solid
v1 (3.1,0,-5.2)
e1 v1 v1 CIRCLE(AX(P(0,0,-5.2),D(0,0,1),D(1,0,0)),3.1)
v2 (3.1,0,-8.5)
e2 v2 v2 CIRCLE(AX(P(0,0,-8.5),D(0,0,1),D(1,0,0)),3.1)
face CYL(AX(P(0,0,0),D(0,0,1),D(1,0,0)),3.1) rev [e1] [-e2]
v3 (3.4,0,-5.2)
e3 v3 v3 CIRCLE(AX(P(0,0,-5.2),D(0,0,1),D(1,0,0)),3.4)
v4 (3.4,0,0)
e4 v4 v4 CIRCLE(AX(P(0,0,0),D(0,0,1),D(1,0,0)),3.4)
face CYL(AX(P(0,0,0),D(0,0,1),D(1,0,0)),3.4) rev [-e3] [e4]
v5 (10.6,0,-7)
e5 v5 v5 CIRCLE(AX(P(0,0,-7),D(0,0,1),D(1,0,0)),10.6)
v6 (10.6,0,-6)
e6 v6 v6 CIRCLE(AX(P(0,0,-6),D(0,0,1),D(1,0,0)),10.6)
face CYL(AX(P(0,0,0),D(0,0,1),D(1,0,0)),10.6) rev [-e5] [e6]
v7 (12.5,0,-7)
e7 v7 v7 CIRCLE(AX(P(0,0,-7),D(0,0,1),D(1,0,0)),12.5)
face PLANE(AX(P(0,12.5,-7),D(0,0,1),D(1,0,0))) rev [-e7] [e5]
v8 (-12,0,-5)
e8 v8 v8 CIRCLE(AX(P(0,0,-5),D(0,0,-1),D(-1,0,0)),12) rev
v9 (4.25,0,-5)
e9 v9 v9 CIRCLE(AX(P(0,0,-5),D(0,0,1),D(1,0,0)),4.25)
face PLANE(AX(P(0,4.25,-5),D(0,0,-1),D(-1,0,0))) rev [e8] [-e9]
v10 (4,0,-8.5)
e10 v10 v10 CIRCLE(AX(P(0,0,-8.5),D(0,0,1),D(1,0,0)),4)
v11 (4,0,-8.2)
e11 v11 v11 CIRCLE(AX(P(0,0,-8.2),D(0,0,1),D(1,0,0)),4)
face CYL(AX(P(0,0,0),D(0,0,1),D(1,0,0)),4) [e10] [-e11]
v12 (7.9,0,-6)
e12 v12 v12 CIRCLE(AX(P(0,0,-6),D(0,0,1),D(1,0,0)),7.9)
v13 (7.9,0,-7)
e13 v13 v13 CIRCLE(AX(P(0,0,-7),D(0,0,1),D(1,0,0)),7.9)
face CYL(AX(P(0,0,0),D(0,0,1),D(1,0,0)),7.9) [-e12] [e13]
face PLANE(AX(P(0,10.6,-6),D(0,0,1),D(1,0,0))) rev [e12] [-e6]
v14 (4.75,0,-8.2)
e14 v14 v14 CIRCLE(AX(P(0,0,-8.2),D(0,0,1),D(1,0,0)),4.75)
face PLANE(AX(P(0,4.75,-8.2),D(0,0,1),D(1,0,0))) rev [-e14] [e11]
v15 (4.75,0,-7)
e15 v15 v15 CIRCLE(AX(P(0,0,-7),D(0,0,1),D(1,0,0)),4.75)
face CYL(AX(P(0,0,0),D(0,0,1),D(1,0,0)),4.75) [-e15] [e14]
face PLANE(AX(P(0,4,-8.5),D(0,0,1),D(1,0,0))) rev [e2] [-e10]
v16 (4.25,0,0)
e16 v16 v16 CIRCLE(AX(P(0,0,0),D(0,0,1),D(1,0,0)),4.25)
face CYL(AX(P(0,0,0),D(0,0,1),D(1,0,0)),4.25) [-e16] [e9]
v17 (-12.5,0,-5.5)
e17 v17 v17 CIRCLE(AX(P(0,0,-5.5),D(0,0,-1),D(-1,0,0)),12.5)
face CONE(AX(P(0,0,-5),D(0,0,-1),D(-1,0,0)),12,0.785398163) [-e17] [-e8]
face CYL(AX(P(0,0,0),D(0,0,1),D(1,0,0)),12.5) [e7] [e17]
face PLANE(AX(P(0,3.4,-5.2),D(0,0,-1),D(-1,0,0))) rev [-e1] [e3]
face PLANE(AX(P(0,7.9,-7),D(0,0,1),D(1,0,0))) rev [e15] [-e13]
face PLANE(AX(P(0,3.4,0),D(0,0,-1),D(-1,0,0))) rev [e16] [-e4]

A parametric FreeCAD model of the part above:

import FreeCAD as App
import Part
import Sketcher
from FreeCAD import Vector
Q = App.Units.Quantity


def edges_at(feature, points):
    """Names of the edges that pass closest to the given points."""
    edges = feature.Shape.Edges
    near = lambda p: min(range(len(edges)), key=lambda i: edges[i].distToShape(Part.Vertex(*p))[0])
    return sorted({f"Edge{near(p) + 1}" for p in points})

doc = App.newDocument("Part")
body = doc.addObject("PartDesign::Body", "Body")

sketch1 = body.newObject("Sketcher::SketchObject", "Sketch")
sketch1.AttachmentSupport = (doc.getObject("YZ_Plane"), [""])
sketch1.MapMode = "FlatFace"
sketch1.addGeometry(Part.LineSegment(Vector(4.25, 0, 0), Vector(3.4, 0, 0)), False)
sketch1.addGeometry(Part.LineSegment(Vector(3.4, 0, 0), Vector(3.4, -5.2, 0)), False)
sketch1.addGeometry(Part.LineSegment(Vector(3.4, -5.2, 0), Vector(3.1, -5.2, 0)), False)
sketch1.addGeometry(Part.LineSegment(Vector(3.1, -5.2, 0), Vector(3.1, -8.5, 0)), False)
sketch1.addGeometry(Part.LineSegment(Vector(3.1, -8.5, 0), Vector(4, -8.5, 0)), False)
sketch1.addGeometry(Part.LineSegment(Vector(4, -8.5, 0), Vector(4, -8.2, 0)), False)
sketch1.addGeometry(Part.LineSegment(Vector(4, -8.2, 0), Vector(4.75, -8.2, 0)), False)
sketch1.addGeometry(Part.LineSegment(Vector(4.75, -8.2, 0), Vector(4.75, -7, 0)), False)
sketch1.addGeometry(Part.LineSegment(Vector(4.75, -7, 0), Vector(7.9, -7, 0)), False)
sketch1.addGeometry(Part.LineSegment(Vector(7.9, -7, 0), Vector(7.9, -6, 0)), False)
sketch1.addGeometry(Part.LineSegment(Vector(7.9, -6, 0), Vector(10.6, -6, 0)), False)
sketch1.addGeometry(Part.LineSegment(Vector(10.6, -6, 0), Vector(10.6, -7, 0)), False)
sketch1.addGeometry(Part.LineSegment(Vector(10.6, -7, 0), Vector(12.5, -7, 0)), False)
sketch1.addGeometry(Part.LineSegment(Vector(12.5, -7, 0), Vector(12.5, -5, 0)), False)
sketch1.addGeometry(Part.LineSegment(Vector(12.5, -5, 0), Vector(4.25, -5, 0)), False)
sketch1.addGeometry(Part.LineSegment(Vector(4.25, -5, 0), Vector(4.25, 0, 0)), False)
sketch1.addConstraint(Sketcher.Constraint("Coincident", 0, 2, 1, 1))
sketch1.addConstraint(Sketcher.Constraint("Coincident", 1, 2, 2, 1))
sketch1.addConstraint(Sketcher.Constraint("Coincident", 2, 2, 3, 1))
sketch1.addConstraint(Sketcher.Constraint("Coincident", 3, 2, 4, 1))
sketch1.addConstraint(Sketcher.Constraint("Coincident", 4, 2, 5, 1))
sketch1.addConstraint(Sketcher.Constraint("Coincident", 5, 2, 6, 1))
sketch1.addConstraint(Sketcher.Constraint("Coincident", 6, 2, 7, 1))
sketch1.addConstraint(Sketcher.Constraint("Coincident", 7, 2, 8, 1))
sketch1.addConstraint(Sketcher.Constraint("Coincident", 8, 2, 9, 1))
sketch1.addConstraint(Sketcher.Constraint("Coincident", 9, 2, 10, 1))
sketch1.addConstraint(Sketcher.Constraint("Coincident", 10, 2, 11, 1))
sketch1.addConstraint(Sketcher.Constraint("Coincident", 11, 2, 12, 1))
sketch1.addConstraint(Sketcher.Constraint("Coincident", 12, 2, 13, 1))
sketch1.addConstraint(Sketcher.Constraint("Coincident", 13, 2, 14, 1))
sketch1.addConstraint(Sketcher.Constraint("Coincident", 14, 2, 15, 1))
sketch1.addConstraint(Sketcher.Constraint("Coincident", 15, 2, 0, 1))
sketch1.addConstraint(Sketcher.Constraint("Horizontal", 0))
sketch1.addConstraint(Sketcher.Constraint("Vertical", 1))
sketch1.addConstraint(Sketcher.Constraint("Horizontal", 2))
sketch1.addConstraint(Sketcher.Constraint("Vertical", 3))
sketch1.addConstraint(Sketcher.Constraint("Horizontal", 4))
sketch1.addConstraint(Sketcher.Constraint("Vertical", 5))
sketch1.addConstraint(Sketcher.Constraint("Horizontal", 6))
sketch1.addConstraint(Sketcher.Constraint("Vertical", 7))
sketch1.addConstraint(Sketcher.Constraint("Horizontal", 8))
sketch1.addConstraint(Sketcher.Constraint("Vertical", 9))
sketch1.addConstraint(Sketcher.Constraint("Horizontal", 10))
sketch1.addConstraint(Sketcher.Constraint("Vertical", 11))
sketch1.addConstraint(Sketcher.Constraint("Horizontal", 12))
sketch1.addConstraint(Sketcher.Constraint("Vertical", 13))
sketch1.addConstraint(Sketcher.Constraint("Horizontal", 14))
sketch1.addConstraint(Sketcher.Constraint("Vertical", 15))
sketch1.addConstraint(Sketcher.Constraint("PointOnObject", 0, 2, -1))
sketch1.addConstraint(Sketcher.Constraint("Horizontal", 8, 2, 11, 2))
sketch1.addConstraint(Sketcher.Constraint("Equal", 2, 5))
sketch1.addConstraint(Sketcher.Constraint("DistanceY", 9, 1, 9, 2, Q("1 mm")))
sketch1.addConstraint(Sketcher.Constraint("DistanceY", 13, 1, 13, 2, Q("2 mm")))
sketch1.addConstraint(Sketcher.Constraint("DistanceY", 15, 1, 15, 2, Q("5 mm")))
sketch1.addConstraint(Sketcher.Constraint("DistanceX", 2, 2, 2, 1, Q("0.3 mm")))
sketch1.addConstraint(Sketcher.Constraint("DistanceX", 4, 1, 4, 2, Q("0.9 mm")))
sketch1.addConstraint(Sketcher.Constraint("DistanceX", 10, 1, 10, 2, Q("2.7 mm")))
sketch1.addConstraint(Sketcher.Constraint("DistanceX", 12, 1, 12, 2, Q("1.9 mm")))
sketch1.addConstraint(Sketcher.Constraint("DistanceY", 1, 2, 1, 1, Q("5.2 mm")))
sketch1.addConstraint(Sketcher.Constraint("DistanceY", 3, 2, 3, 1, Q("3.3 mm")))
sketch1.addConstraint(Sketcher.Constraint("DistanceX", -1, 1, 4, 2, Q("4 mm")))
sketch1.addConstraint(Sketcher.Constraint("DistanceX", 0, 2, 0, 1, Q("0.85 mm")))
sketch1.addConstraint(Sketcher.Constraint("DistanceX", 6, 1, 6, 2, Q("0.75 mm")))
sketch1.addConstraint(Sketcher.Constraint("DistanceX", 8, 1, 8, 2, Q("3.15 mm")))
revolution = body.newObject("PartDesign::Revolution", "Revolution")
revolution.Profile = sketch1
revolution.ReferenceAxis = (sketch1, ["V_Axis"])
revolution.Angle = 360
doc.recompute()

chamfer = body.newObject("PartDesign::Chamfer", "Chamfer")
chamfer.Base = (revolution, edges_at(revolution, [(-12.5, 0, -5)]))
chamfer.Size = 0.5

doc.recompute()
